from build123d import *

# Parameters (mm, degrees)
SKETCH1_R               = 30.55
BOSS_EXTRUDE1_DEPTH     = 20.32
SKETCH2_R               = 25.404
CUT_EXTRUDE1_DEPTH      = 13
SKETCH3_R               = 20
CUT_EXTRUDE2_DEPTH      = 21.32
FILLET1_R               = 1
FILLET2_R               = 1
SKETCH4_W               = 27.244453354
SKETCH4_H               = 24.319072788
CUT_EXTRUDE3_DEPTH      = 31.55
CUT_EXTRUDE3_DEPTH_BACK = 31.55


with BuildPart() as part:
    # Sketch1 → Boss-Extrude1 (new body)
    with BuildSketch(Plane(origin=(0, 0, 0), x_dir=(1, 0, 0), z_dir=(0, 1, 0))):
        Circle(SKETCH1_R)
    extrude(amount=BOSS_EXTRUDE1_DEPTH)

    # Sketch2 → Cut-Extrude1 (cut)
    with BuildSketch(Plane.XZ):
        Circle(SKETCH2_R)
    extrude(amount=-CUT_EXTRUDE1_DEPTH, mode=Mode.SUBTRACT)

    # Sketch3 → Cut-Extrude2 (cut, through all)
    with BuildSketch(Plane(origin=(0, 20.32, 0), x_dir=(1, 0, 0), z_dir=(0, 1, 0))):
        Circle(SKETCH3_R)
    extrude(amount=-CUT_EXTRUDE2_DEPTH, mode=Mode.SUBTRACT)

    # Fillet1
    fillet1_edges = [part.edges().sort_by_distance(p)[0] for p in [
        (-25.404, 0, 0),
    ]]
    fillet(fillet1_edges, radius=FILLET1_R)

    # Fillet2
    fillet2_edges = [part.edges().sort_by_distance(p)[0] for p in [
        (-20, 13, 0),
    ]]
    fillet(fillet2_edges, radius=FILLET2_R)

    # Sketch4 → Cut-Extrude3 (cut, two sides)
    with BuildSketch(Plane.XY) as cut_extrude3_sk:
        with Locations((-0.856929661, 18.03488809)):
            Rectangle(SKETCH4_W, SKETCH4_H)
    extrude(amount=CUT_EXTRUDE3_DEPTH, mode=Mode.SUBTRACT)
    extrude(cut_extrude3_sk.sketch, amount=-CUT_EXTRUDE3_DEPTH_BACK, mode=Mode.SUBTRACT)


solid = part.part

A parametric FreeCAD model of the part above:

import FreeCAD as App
import Part
import Sketcher


def edges_at(feature, points):
    """Names of the edges that pass closest to the given points."""
    edges = feature.Shape.Edges
    near = lambda p: min(range(len(edges)), key=lambda i: edges[i].distToShape(Part.Vertex(*p))[0])
    return sorted({f"Edge{near(p) + 1}" for p in points})

doc = App.newDocument("Part")
body = doc.addObject("PartDesign::Body", "Body")

sketch1 = body.newObject("Sketcher::SketchObject", "Sketch")
sketch1.AttachmentSupport = (doc.getObject("XZ_Plane"), [""])
sketch1.MapMode = "FlatFace"
sketch1.addGeometry(Part.Circle(App.Vector(0, 0, 0), App.Vector(0, 0, 1), 31), False)
sketch1.addConstraint([
    Sketcher.Constraint("Coincident", 0, 3, -1, 1),
    Sketcher.Constraint("Diameter", 0, 61.1),
])
pad1 = body.newObject("PartDesign::Pad", "Pad")
pad1.Profile = sketch1
pad1.Length = 20.32
pad1.Reversed = True

sketch2 = body.newObject("Sketcher::SketchObject", "Sketch001")
sketch2.AttachmentSupport = (doc.getObject("XZ_Plane"), [""])
sketch2.MapMode = "FlatFace"
sketch2.addGeometry(Part.Circle(App.Vector(0, 0, 0), App.Vector(0, 0, 1), 25), False)
sketch2.addConstraint([
    Sketcher.Constraint("Coincident", 0, 3, -1, 1),
    Sketcher.Constraint("Diameter", 0, 50.808),
])
pocket1 = body.newObject("PartDesign::Pocket", "Pocket")
pocket1.Profile = sketch2
pocket1.Length = 13

sketch3 = body.newObject("Sketcher::SketchObject", "Sketch002")
sketch3.AttachmentSupport = (doc.getObject("XZ_Plane"), [""])
sketch3.MapMode = "FlatFace"
sketch3.AttachmentOffset = App.Placement(App.Vector(0, 0, -20.32), App.Rotation())
sketch3.addGeometry(Part.Circle(App.Vector(0, 0, 0), App.Vector(0, 0, 1), 20), False)
sketch3.addConstraint([
    Sketcher.Constraint("Coincident", 0, 3, -1, 1),
    Sketcher.Constraint("Diameter", 0, 40.0),
])
pocket2 = body.newObject("PartDesign::Pocket", "Pocket001")
pocket2.Profile = sketch3
pocket2.Type = "ThroughAll"
pocket2.Reversed = True
doc.recompute()

fillet = body.newObject("PartDesign::Fillet", "Fillet")
fillet.Base = (pocket2, edges_at(pocket2, [(-25.404, 0, 0)]))
fillet.Radius = 1
doc.recompute()

fillet2 = body.newObject("PartDesign::Fillet", "Fillet001")
fillet2.Base = (fillet, edges_at(fillet, [(-20, 13, 0)]))
fillet2.Radius = 1

sketch4 = body.newObject("Sketcher::SketchObject", "Sketch003")
sketch4.AttachmentSupport = (doc.getObject("XY_Plane"), [""])
sketch4.MapMode = "FlatFace"
sketch4.addGeometry([
    Part.LineSegment(App.Vector(-14, 30, 0), App.Vector(-14, 6, 0)),
    Part.LineSegment(App.Vector(-14, 6, 0), App.Vector(13, 6, 0)),
    Part.LineSegment(App.Vector(13, 6, 0), App.Vector(13, 30, 0)),
    Part.LineSegment(App.Vector(13, 30, 0), App.Vector(-14, 30, 0)),
], False)
sketch4.addConstraint([
    Sketcher.Constraint("Coincident", 0, 2, 1, 1),
    Sketcher.Constraint("Coincident", 1, 2, 2, 1),
    Sketcher.Constraint("Coincident", 2, 2, 3, 1),
    Sketcher.Constraint("Coincident", 3, 2, 0, 1),
    Sketcher.Constraint("Vertical", 0),
    Sketcher.Constraint("Horizontal", 1),
    Sketcher.Constraint("Vertical", 2),
    Sketcher.Constraint("Horizontal", 3),
    Sketcher.Constraint("DistanceX", 1, 1, 1, 2, 27.244453),
    Sketcher.Constraint("DistanceY", 0, 2, 0, 1, 24.319073),
    Sketcher.Constraint("DistanceY", -1, 1, 0, 2, 5.875352),
    Sketcher.Constraint("DistanceX", 0, 2, -1, 1, 14.479156),
])
pocket3 = body.newObject("PartDesign::Pocket", "Pocket002")
pocket3.Profile = sketch4
pocket3.Type = "ThroughAll"
pocket3.Midplane = True

doc.recompute()
